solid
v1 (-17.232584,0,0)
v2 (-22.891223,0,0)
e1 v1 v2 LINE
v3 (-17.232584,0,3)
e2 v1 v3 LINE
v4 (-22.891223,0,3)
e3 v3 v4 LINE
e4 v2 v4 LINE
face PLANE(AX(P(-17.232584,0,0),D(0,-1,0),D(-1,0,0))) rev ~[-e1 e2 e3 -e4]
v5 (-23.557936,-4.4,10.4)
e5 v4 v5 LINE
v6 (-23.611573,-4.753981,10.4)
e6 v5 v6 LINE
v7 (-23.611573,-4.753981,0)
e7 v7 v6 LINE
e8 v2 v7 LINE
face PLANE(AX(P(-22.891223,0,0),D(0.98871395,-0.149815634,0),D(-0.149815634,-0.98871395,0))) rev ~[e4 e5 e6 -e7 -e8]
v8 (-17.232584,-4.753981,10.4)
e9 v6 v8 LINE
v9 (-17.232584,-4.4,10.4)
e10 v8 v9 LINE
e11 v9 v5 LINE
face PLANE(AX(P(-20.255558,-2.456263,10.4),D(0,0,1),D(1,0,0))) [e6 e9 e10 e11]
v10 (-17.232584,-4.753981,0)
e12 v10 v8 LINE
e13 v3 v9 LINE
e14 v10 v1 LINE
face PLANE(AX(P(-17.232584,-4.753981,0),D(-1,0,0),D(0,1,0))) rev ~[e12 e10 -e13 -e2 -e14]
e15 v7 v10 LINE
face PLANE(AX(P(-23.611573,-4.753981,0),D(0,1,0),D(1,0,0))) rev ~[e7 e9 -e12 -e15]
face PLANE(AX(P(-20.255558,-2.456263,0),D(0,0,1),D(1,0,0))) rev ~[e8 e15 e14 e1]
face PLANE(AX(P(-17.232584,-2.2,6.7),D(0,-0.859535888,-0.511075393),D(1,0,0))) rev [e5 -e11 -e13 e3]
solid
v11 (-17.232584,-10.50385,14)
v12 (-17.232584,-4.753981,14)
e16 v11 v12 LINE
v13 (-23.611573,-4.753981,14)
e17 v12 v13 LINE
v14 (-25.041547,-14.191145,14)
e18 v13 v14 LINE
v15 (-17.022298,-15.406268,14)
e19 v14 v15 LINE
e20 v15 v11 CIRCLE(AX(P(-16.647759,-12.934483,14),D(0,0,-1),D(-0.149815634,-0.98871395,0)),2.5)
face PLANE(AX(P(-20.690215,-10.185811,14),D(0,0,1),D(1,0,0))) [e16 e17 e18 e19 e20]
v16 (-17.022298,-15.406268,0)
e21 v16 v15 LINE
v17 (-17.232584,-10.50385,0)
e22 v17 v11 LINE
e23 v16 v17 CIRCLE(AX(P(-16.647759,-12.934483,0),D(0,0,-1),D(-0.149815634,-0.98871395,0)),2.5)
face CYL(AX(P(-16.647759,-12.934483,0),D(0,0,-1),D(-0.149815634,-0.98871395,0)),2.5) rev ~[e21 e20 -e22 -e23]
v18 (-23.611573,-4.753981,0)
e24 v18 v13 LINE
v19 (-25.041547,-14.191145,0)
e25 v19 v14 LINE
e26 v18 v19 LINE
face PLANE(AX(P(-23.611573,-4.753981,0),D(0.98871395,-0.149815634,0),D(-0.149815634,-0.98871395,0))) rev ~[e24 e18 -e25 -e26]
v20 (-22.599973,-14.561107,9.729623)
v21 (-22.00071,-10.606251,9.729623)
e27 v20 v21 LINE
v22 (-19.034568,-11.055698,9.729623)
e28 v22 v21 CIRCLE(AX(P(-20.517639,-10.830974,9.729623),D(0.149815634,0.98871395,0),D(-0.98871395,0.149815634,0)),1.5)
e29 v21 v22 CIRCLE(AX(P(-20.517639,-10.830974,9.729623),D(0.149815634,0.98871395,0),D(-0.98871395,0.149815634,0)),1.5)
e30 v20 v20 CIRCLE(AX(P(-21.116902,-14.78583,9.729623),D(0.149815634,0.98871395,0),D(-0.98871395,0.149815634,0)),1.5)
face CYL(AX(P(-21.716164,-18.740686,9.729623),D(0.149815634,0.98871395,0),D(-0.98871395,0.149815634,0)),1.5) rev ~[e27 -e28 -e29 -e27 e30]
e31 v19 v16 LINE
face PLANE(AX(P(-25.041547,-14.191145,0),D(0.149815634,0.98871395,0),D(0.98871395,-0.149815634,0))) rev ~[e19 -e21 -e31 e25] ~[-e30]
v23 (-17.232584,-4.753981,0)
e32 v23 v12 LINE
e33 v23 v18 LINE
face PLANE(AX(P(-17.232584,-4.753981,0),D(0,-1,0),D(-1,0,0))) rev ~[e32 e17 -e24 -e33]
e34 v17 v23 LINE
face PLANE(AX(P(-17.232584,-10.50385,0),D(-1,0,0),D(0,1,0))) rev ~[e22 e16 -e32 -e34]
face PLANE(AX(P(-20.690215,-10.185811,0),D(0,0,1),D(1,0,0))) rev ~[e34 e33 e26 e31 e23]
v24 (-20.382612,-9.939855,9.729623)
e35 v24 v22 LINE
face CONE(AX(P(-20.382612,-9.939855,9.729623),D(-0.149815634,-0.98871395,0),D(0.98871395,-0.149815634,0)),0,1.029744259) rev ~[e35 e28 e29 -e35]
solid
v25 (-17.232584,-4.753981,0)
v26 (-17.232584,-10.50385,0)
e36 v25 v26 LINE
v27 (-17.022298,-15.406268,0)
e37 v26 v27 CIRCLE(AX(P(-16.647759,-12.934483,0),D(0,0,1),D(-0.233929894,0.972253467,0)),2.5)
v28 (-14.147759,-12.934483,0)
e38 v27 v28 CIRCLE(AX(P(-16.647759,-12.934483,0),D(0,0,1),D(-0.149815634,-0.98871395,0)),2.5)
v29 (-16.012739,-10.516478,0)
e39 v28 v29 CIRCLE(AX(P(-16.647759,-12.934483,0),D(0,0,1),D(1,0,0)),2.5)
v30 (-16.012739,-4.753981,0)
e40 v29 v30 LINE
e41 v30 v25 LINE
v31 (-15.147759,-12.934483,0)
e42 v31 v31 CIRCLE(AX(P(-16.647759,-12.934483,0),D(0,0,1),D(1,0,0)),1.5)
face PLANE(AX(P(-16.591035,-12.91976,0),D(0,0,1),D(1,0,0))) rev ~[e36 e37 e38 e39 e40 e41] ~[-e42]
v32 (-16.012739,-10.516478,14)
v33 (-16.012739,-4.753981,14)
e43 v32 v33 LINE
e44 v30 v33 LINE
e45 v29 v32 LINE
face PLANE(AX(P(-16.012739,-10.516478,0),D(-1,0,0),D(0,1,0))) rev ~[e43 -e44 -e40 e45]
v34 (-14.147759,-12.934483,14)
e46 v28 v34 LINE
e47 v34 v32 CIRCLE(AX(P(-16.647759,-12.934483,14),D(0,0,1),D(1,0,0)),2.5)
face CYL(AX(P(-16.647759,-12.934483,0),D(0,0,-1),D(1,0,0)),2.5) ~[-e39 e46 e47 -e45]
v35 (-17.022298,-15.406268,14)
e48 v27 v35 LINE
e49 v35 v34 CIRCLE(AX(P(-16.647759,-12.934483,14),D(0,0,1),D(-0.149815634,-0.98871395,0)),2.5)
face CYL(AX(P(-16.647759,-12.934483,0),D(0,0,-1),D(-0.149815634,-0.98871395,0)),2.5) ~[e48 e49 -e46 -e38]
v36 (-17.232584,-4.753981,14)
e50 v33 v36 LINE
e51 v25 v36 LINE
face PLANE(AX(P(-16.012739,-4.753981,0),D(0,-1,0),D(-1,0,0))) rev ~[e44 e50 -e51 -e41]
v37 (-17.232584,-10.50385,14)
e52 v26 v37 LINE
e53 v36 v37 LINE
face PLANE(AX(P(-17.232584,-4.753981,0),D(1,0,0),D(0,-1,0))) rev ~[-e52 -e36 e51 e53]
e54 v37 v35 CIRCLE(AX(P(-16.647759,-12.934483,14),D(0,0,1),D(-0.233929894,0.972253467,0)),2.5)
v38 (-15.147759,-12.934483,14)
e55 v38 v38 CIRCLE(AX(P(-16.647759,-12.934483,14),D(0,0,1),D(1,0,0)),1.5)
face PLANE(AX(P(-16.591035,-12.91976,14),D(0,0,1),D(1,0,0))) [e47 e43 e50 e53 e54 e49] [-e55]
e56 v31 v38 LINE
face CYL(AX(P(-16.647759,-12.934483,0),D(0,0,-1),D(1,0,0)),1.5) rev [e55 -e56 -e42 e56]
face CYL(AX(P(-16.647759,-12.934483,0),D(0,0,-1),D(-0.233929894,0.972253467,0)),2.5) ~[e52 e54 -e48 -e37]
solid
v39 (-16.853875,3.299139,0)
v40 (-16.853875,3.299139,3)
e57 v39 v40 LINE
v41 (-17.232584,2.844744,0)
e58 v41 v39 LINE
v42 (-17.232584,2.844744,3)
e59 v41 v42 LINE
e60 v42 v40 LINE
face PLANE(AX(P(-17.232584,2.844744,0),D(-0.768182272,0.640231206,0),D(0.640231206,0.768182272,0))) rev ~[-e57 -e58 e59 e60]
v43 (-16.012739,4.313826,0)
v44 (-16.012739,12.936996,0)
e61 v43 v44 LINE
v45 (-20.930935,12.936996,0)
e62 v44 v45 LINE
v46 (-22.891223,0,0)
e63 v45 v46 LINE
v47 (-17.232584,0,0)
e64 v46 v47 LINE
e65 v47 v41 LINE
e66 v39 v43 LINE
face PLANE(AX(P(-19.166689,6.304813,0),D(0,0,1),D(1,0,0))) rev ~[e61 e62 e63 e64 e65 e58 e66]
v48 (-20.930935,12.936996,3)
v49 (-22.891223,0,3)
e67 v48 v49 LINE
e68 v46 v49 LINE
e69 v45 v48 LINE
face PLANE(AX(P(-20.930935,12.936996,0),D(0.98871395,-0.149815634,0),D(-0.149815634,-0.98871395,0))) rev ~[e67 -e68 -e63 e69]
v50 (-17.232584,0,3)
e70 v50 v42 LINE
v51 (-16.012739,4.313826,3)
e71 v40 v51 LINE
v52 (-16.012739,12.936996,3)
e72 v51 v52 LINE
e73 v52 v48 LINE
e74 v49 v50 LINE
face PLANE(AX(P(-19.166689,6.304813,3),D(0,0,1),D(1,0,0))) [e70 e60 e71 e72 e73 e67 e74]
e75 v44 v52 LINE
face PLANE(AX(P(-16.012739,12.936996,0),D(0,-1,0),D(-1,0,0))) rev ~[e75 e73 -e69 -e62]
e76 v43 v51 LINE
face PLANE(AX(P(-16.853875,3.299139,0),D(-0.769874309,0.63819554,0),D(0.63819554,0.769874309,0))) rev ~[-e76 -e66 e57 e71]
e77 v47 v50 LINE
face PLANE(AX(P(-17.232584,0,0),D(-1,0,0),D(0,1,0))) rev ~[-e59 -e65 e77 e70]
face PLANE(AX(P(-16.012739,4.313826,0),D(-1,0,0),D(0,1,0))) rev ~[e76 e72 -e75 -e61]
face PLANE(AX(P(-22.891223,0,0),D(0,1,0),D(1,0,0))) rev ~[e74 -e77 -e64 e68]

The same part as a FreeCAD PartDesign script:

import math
import FreeCAD as App
import Part
import Sketcher
from FreeCAD import Vector
Q = App.Units.Quantity


def edges_at(feature, points):
    """Names of the edges that pass closest to the given points."""
    edges = feature.Shape.Edges
    near = lambda p: min(range(len(edges)), key=lambda i: edges[i].distToShape(Part.Vertex(*p))[0])
    return sorted({f"Edge{near(p) + 1}" for p in points})


def add_polygon(sketch, points):
    """Adds a closed chain of lines whose ends are joined by coincident constraints."""
    first, n = sketch.GeometryCount, len(points)
    for a, b in zip(points, points[1:] + points[:1]):
        sketch.addGeometry(Part.LineSegment(App.Vector(*a, 0), App.Vector(*b, 0)), False)
    for i in range(n):
        sketch.addConstraint(Sketcher.Constraint("Coincident", first + i, 2, first + (i + 1) % n, 1))

doc = App.newDocument("Part")
body = doc.addObject("PartDesign::Body", "Body")

# Sketch on XY plane
sketch1 = body.newObject("Sketcher::SketchObject", "Sketch")
sketch1.AttachmentSupport = (doc.getObject("XY_Plane"), [""])
sketch1.MapMode = "FlatFace"
sketch1.addGeometry(Part.ArcOfCircle(Part.Circle(Vector(-16.6, -12.9, 0), Vector(0, 0, 1), 2.5), math.radians(0), math.radians(75)), False)
sketch1.addGeometry(Part.LineSegment(Vector(-16, -10.5, 0), Vector(-16, -4.8, 0)), False)
sketch1.addGeometry(Part.LineSegment(Vector(-16, -4.8, 0), Vector(-17.2, -4.8, 0)), False)
sketch1.addGeometry(Part.LineSegment(Vector(-17.2, -4.8, 0), Vector(-17.2, -10.5, 0)), False)
sketch1.addGeometry(Part.ArcOfCircle(Part.Circle(Vector(-16.6, -12.9, 0), Vector(0, 0, 1), 2.5), math.radians(104), math.radians(261)), False)
sketch1.addGeometry(Part.ArcOfCircle(Part.Circle(Vector(-16.6, -12.9, 0), Vector(0, 0, 1), 2.5), math.radians(-99), math.radians(0)), False)
sketch1.addGeometry(Part.Circle(Vector(-16.6, -12.9, 0), Vector(0, 0, 1), 1.5), False)
sketch1.addConstraint(Sketcher.Constraint("Coincident", 0, 2, 1, 1))
sketch1.addConstraint(Sketcher.Constraint("Coincident", 1, 2, 2, 1))
sketch1.addConstraint(Sketcher.Constraint("Coincident", 2, 2, 3, 1))
sketch1.addConstraint(Sketcher.Constraint("Coincident", 3, 2, 4, 1))
sketch1.addConstraint(Sketcher.Constraint("Tangent", 4, 2, 5, 1))
sketch1.addConstraint(Sketcher.Constraint("Tangent", 5, 2, 0, 1))
sketch1.addConstraint(Sketcher.Constraint("Vertical", 1))
sketch1.addConstraint(Sketcher.Constraint("Horizontal", 2))
sketch1.addConstraint(Sketcher.Constraint("Vertical", 3))
sketch1.addConstraint(Sketcher.Constraint("Coincident", 4, 3, 0, 3))
sketch1.addConstraint(Sketcher.Constraint("Coincident", 6, 3, 0, 3))
sketch1.addConstraint(Sketcher.Constraint("Horizontal", 6, 3, 5, 2))
sketch1.addConstraint(Sketcher.Constraint("Diameter", 6, Q("3 mm")))
sketch1.addConstraint(Sketcher.Constraint("Radius", 0, Q("2.5 mm")))
sketch1.addConstraint(Sketcher.Constraint("DistanceY", 3, 2, 3, 1, Q("5.749869 mm")))
sketch1.addConstraint(Sketcher.Constraint("DistanceX", 4, 2, -1, 1, Q("17.022298 mm")))
sketch1.addConstraint(Sketcher.Constraint("DistanceX", 2, 2, 2, 1, Q("1.219844 mm")))
sketch1.addConstraint(Sketcher.Constraint("DistanceY", 1, 1, 1, 2, Q("5.762497 mm")))
sketch1.addConstraint(Sketcher.Constraint("DistanceX", 0, 3, -1, 1, Q("16.647759 mm")))
sketch1.addConstraint(Sketcher.Constraint("DistanceY", 1, 2, -1, 1, Q("4.753981 mm")))
pad1 = body.newObject("PartDesign::Pad", "Pad")
pad1.Profile = sketch1
pad1.Length = 14
body2 = doc.addObject("PartDesign::Body", "Body001")

# Sketch on XY plane
sketch2 = body2.newObject("Sketcher::SketchObject", "Sketch001")
sketch2.AttachmentSupport = (doc.getObject("XY_Plane001"), [""])
sketch2.MapMode = "FlatFace"
sketch2.addGeometry(Part.LineSegment(Vector(-17.2, -10.5, 0), Vector(-17.2, -4.8, 0)), False)
sketch2.addGeometry(Part.LineSegment(Vector(-17.2, -4.8, 0), Vector(-23.6, -4.8, 0)), False)
sketch2.addGeometry(Part.LineSegment(Vector(-23.6, -4.8, 0), Vector(-25, -14.2, 0)), False)
sketch2.addGeometry(Part.LineSegment(Vector(-25, -14.2, 0), Vector(-17, -15.4, 0)), False)
sketch2.addGeometry(Part.ArcOfCircle(Part.Circle(Vector(-16.6, -12.9, 0), Vector(0, 0, 1), 2.5), math.radians(104), math.radians(261)), False)
sketch2.addConstraint(Sketcher.Constraint("Coincident", 0, 2, 1, 1))
sketch2.addConstraint(Sketcher.Constraint("Coincident", 1, 2, 2, 1))
sketch2.addConstraint(Sketcher.Constraint("Coincident", 2, 2, 3, 1))
sketch2.addConstraint(Sketcher.Constraint("Tangent", 3, 2, 4, 2))
sketch2.addConstraint(Sketcher.Constraint("Coincident", 4, 1, 0, 1))
sketch2.addConstraint(Sketcher.Constraint("Vertical", 0))
sketch2.addConstraint(Sketcher.Constraint("Horizontal", 1))
sketch2.addConstraint(Sketcher.Constraint("Perpendicular", 2, 3))
sketch2.addConstraint(Sketcher.Constraint("Radius", 4, Q("2.5 mm")))
sketch2.addConstraint(Sketcher.Constraint("DistanceX", 1, 2, 1, 1, Q("6.37899 mm")))
sketch2.addConstraint(Sketcher.Constraint("DistanceY", 0, 1, 0, 2, Q("5.749869 mm")))
sketch2.addConstraint(Sketcher.Constraint("DistanceX", 3, 2, -1, 1, Q("17.022298 mm")))
sketch2.addConstraint(Sketcher.Constraint("Distance", 2, Q("9.544889 mm")))
sketch2.addConstraint(Sketcher.Constraint("DistanceX", 4, 3, -1, 1, Q("16.647759 mm")))
sketch2.addConstraint(Sketcher.Constraint("DistanceY", 0, 2, -1, 1, Q("4.753981 mm")))
pad2 = body2.newObject("PartDesign::Pad", "Pad001")
pad2.Profile = sketch2
pad2.Length = 14

# Sketch on an angled plane
sketch3 = body2.newObject("Sketcher::SketchObject", "Sketch002")
sketch3.Placement = App.Placement(Vector(-2.664111, -17.581903, 0), App.Rotation(Vector(0.98871395, -0.149815634, 0), Vector(0, 0, 0.999999999), Vector(-0.149815634, -0.98871395, 0), "ZXY"))
sketch3.addGeometry(Part.Circle(Vector(-18.7, 9.7, 0), Vector(0, 0, 1), 1.5), False)
sketch3.addConstraint(Sketcher.Constraint("Diameter", 0, Q("3 mm")))
sketch3.addConstraint(Sketcher.Constraint("DistanceX", 0, 3, -1, 1, Q("18.663427 mm")))
sketch3.addConstraint(Sketcher.Constraint("DistanceY", -1, 1, 0, 3, Q("9.729623 mm")))
doc.recompute()
hole = body2.newObject("PartDesign::Hole", "Hole")
hole.Profile = sketch3
hole.ThreadType = "None"
hole.Diameter = 3
hole.DepthType = "Dimension"
hole.Depth = 4
hole.DrillPoint = "Angled"
hole.DrillPointAngle = 118
body3 = doc.addObject("PartDesign::Body", "Body002")

# Sketch on XY plane
sketch4 = body3.newObject("Sketcher::SketchObject", "Sketch003")
sketch4.AttachmentSupport = (doc.getObject("XY_Plane002"), [""])
sketch4.MapMode = "FlatFace"
add_polygon(sketch4, [(-23.6, -4.8), (-17.2, -4.8), (-17.2, 0), (-22.9, 0)])  # lines 0-3
sketch4.addConstraint(Sketcher.Constraint("Horizontal", 0))
sketch4.addConstraint(Sketcher.Constraint("Vertical", 1))
sketch4.addConstraint(Sketcher.Constraint("Horizontal", 2))
sketch4.addConstraint(Sketcher.Constraint("PointOnObject", 1, 2, -1))
sketch4.addConstraint(Sketcher.Constraint("DistanceX", 0, 1, 0, 2, Q("6.37899 mm")))
sketch4.addConstraint(Sketcher.Constraint("DistanceX", 2, 2, 2, 1, Q("5.658639 mm")))
sketch4.addConstraint(Sketcher.Constraint("DistanceY", 1, 1, 1, 2, Q("4.753981 mm")))
sketch4.addConstraint(Sketcher.Constraint("DistanceX", 0, 2, -1, 1, Q("17.232584 mm")))
pad3 = body3.newObject("PartDesign::Pad", "Pad002")
pad3.Profile = sketch4
pad3.Length = 10.4
doc.recompute()

chamfer = body3.newObject("PartDesign::Chamfer", "Chamfer")
chamfer.Base = (pad3, edges_at(pad3, [(-20.062, 0, 10.4)]))
chamfer.ChamferType = "Two distances"
chamfer.Size = 7.4
chamfer.Size2 = 4.4
body4 = doc.addObject("PartDesign::Body", "Body003")

# Sketch on XY plane
sketch5 = body4.newObject("Sketcher::SketchObject", "Sketch004")
sketch5.AttachmentSupport = (doc.getObject("XY_Plane003"), [""])
sketch5.MapMode = "FlatFace"
add_polygon(sketch5, [(-22.9, 0), (-17.2, 0), (-17.2, 2.8), (-16.9, 3.3), (-16, 4.3), (-16, 12.9), (-20.9, 12.9)])  # lines 0-6
sketch5.addConstraint(Sketcher.Constraint("Horizontal", 0))
sketch5.addConstraint(Sketcher.Constraint("Vertical", 1))
sketch5.addConstraint(Sketcher.Constraint("Vertical", 4))
sketch5.addConstraint(Sketcher.Constraint("Horizontal", 5))
sketch5.addConstraint(Sketcher.Constraint("PointOnObject", 0, 2, -1))
sketch5.addConstraint(Sketcher.Constraint("DistanceX", 0, 1, 0, 2, Q("5.658639 mm")))
sketch5.addConstraint(Sketcher.Constraint("DistanceY", 4, 1, 4, 2, Q("8.623171 mm")))
sketch5.addConstraint(Sketcher.Constraint("Distance", 2, Q("0.59152 mm")))
sketch5.addConstraint(Sketcher.Constraint("Distance", 3, Q("1.31799 mm")))
sketch5.addConstraint(Sketcher.Constraint("Distance", 6, Q("13.084671 mm")))
sketch5.addConstraint(Sketcher.Constraint("DistanceX", 5, 2, 5, 1, Q("4.918195 mm")))
sketch5.addConstraint(Sketcher.Constraint("DistanceY", 1, 1, 1, 2, Q("2.844744 mm")))
sketch5.addConstraint(Sketcher.Constraint("DistanceY", -1, 1, 2, 2, Q("3.299139 mm")))
sketch5.addConstraint(Sketcher.Constraint("DistanceX", 3, 2, -1, 1, Q("16.012739 mm")))
pad4 = body4.newObject("PartDesign::Pad", "Pad003")
pad4.Profile = sketch5
pad4.Length = 3

doc.recompute()
